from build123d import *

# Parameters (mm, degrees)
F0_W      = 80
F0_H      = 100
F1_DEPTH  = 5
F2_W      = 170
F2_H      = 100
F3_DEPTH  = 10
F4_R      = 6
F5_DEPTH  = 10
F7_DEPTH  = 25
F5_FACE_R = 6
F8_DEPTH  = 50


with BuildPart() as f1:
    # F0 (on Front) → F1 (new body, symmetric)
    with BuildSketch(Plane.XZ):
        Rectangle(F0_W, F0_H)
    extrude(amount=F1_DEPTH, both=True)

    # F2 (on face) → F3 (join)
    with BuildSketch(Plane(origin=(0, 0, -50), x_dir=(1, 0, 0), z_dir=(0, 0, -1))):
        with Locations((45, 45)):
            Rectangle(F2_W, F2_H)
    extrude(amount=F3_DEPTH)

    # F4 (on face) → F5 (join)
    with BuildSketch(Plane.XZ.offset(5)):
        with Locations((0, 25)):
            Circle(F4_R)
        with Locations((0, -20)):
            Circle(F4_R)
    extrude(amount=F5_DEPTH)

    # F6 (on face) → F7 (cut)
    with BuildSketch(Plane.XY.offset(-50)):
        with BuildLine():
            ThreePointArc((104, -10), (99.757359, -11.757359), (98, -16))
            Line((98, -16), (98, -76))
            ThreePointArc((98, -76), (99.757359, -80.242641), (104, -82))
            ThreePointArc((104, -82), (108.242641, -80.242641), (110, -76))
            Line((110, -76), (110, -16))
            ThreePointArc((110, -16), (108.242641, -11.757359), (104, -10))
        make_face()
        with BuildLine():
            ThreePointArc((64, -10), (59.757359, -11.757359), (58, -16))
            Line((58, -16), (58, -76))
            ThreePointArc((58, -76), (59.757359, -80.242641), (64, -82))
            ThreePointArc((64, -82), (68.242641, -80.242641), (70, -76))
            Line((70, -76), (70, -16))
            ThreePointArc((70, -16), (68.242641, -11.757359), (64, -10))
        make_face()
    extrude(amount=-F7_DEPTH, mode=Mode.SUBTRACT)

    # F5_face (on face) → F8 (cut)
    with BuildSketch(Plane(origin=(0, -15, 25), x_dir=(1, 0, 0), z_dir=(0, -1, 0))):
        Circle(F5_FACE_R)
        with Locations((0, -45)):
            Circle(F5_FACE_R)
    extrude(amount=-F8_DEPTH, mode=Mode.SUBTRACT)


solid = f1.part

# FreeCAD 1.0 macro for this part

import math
import FreeCAD as App
import Part
import Sketcher
from FreeCAD import Vector
Q = App.Units.Quantity


def add_polygon(sketch, points):
    """Adds a closed chain of lines whose ends are joined by coincident constraints."""
    first, n = sketch.GeometryCount, len(points)
    for a, b in zip(points, points[1:] + points[:1]):
        sketch.addGeometry(Part.LineSegment(App.Vector(*a, 0), App.Vector(*b, 0)), False)
    for i in range(n):
        sketch.addConstraint(Sketcher.Constraint("Coincident", first + i, 2, first + (i + 1) % n, 1))

doc = App.newDocument("Part")
params = doc.addObject("Spreadsheet::Sheet", "Params")
for row, (alias, value) in enumerate([
    ("sketch1_width", "80 mm"),
    ("sketch1_height", "100 mm"),
    ("pad1_length", "10 mm"),
    ("sketch2_width", "170 mm"),
    ("sketch2_height", "100 mm"),
    ("pad2_length", "10 mm"),
    ("sketch3_diameter", "12 mm"),
    ("pad3_length", "10 mm"),
    ("sketch4_radius", "5.999999 mm"),
    ("sketch4_height", "60 mm"),
    ("pocket1_length", "25 mm"),
    ("sketch5_diameter", "12 mm"),
    ("pocket2_length", "50 mm"),
], start=1):
    params.set(f"A{row}", alias)
    params.set(f"B{row}", "=" + value)
    params.setAlias(f"B{row}", alias)

body = doc.addObject("PartDesign::Body", "Body")

# Sketch on XZ plane
sketch1 = body.newObject("Sketcher::SketchObject", "Sketch")
sketch1.AttachmentSupport = (doc.getObject("XZ_Plane"), [""])
sketch1.MapMode = "FlatFace"
add_polygon(sketch1, [(-40, 50), (-40, -50), (40, -50), (40, 50)])  # lines 0-3
sketch1.addConstraint(Sketcher.Constraint("Vertical", 0))
sketch1.addConstraint(Sketcher.Constraint("Horizontal", 1))
sketch1.addConstraint(Sketcher.Constraint("Vertical", 2))
sketch1.addConstraint(Sketcher.Constraint("Horizontal", 3))
sketch1.addConstraint(Sketcher.Constraint("Symmetric", 0, 2, 2, 2, -1, 1))
sketch1.addConstraint(Sketcher.Constraint("DistanceX", 1, 1, 1, 2, Q("80 mm")))
sketch1.addConstraint(Sketcher.Constraint("DistanceY", 0, 2, 0, 1, Q("100 mm")))
sketch1.setExpression("Constraints[9]", "Params.sketch1_width")
sketch1.setExpression("Constraints[10]", "Params.sketch1_height")
pad1 = body.newObject("PartDesign::Pad", "Pad")
pad1.Profile = sketch1
pad1.setExpression("Length", "Params.pad1_length")
pad1.Midplane = True

# Sketch on XY plane
sketch2 = body.newObject("Sketcher::SketchObject", "Sketch001")
sketch2.AttachmentSupport = (doc.getObject("XY_Plane"), [""])
sketch2.MapMode = "FlatFace"
sketch2.AttachmentOffset = App.Placement(Vector(0, 0, -50), App.Rotation())
add_polygon(sketch2, [(-40, -95), (-40, 5), (130, 5), (130, -95)])  # lines 0-3
sketch2.addConstraint(Sketcher.Constraint("Vertical", 0))
sketch2.addConstraint(Sketcher.Constraint("Horizontal", 1))
sketch2.addConstraint(Sketcher.Constraint("Vertical", 2))
sketch2.addConstraint(Sketcher.Constraint("Horizontal", 3))
sketch2.addConstraint(Sketcher.Constraint("DistanceX", 1, 1, 1, 2, Q("170 mm")))
sketch2.addConstraint(Sketcher.Constraint("DistanceY", 0, 1, 0, 2, Q("100 mm")))
sketch2.addConstraint(Sketcher.Constraint("DistanceX", 0, 2, -1, 1, Q("40 mm")))
sketch2.addConstraint(Sketcher.Constraint("DistanceY", -1, 1, 0, 2, Q("5 mm")))
sketch2.setExpression("Constraints[8]", "Params.sketch2_width")
sketch2.setExpression("Constraints[9]", "Params.sketch2_height")
pad2 = body.newObject("PartDesign::Pad", "Pad001")
pad2.Profile = sketch2
pad2.setExpression("Length", "Params.pad2_length")
pad2.Reversed = True

# Sketch on XZ plane
sketch3 = body.newObject("Sketcher::SketchObject", "Sketch002")
sketch3.AttachmentSupport = (doc.getObject("XZ_Plane"), [""])
sketch3.MapMode = "FlatFace"
sketch3.AttachmentOffset = App.Placement(Vector(0, 0, 5), App.Rotation())
sketch3.addGeometry(Part.Circle(Vector(0, 25, 0), Vector(0, 0, 1), 6), False)
sketch3.addGeometry(Part.Circle(Vector(0, -20, 0), Vector(0, 0, 1), 6), False)
sketch3.addConstraint(Sketcher.Constraint("Equal", 0, 1))
sketch3.addConstraint(Sketcher.Constraint("PointOnObject", 0, 3, -2))
sketch3.addConstraint(Sketcher.Constraint("PointOnObject", 1, 3, -2))
sketch3.addConstraint(Sketcher.Constraint("Diameter", 0, Q("12 mm")))
sketch3.addConstraint(Sketcher.Constraint("DistanceY", -1, 1, 0, 3, Q("25 mm")))
sketch3.addConstraint(Sketcher.Constraint("DistanceY", 1, 3, -1, 1, Q("20 mm")))
sketch3.setExpression("Constraints[3]", "Params.sketch3_diameter")
pad3 = body.newObject("PartDesign::Pad", "Pad002")
pad3.Profile = sketch3
pad3.setExpression("Length", "Params.pad3_length")

# Sketch on XY plane
sketch4 = body.newObject("Sketcher::SketchObject", "Sketch003")
sketch4.AttachmentSupport = (doc.getObject("XY_Plane"), [""])
sketch4.MapMode = "FlatFace"
sketch4.AttachmentOffset = App.Placement(Vector(0, 0, -50), App.Rotation())
sketch4.addGeometry(Part.ArcOfCircle(Part.Circle(Vector(103.999999, -15.999999, 0), Vector(0, 0, 1), 5.999999), math.radians(89.99999), math.radians(180.00001)), False)
sketch4.addGeometry(Part.LineSegment(Vector(98, -16, 0), Vector(98, -76, 0)), False)
sketch4.addGeometry(Part.ArcOfCircle(Part.Circle(Vector(103.999999, -76.000001, 0), Vector(0, 0, 1), 5.999999), math.radians(179.99999), math.radians(270.00001)), False)
sketch4.addGeometry(Part.ArcOfCircle(Part.Circle(Vector(104.000001, -76.000001, 0), Vector(0, 0, 1), 5.999999), math.radians(-90.00001), math.radians(0.00001)), False)
sketch4.addGeometry(Part.LineSegment(Vector(110, -76, 0), Vector(110, -16, 0)), False)
sketch4.addGeometry(Part.ArcOfCircle(Part.Circle(Vector(104.000001, -15.999999, 0), Vector(0, 0, 1), 5.999999), math.radians(-0.00001), math.radians(90.00001)), False)
sketch4.addGeometry(Part.ArcOfCircle(Part.Circle(Vector(63.999999, -15.999999, 0), Vector(0, 0, 1), 5.999999), math.radians(89.99999), math.radians(180.00001)), False)
sketch4.addGeometry(Part.LineSegment(Vector(58, -16, 0), Vector(58, -76, 0)), False)
sketch4.addGeometry(Part.ArcOfCircle(Part.Circle(Vector(63.999999, -76.000001, 0), Vector(0, 0, 1), 5.999999), math.radians(179.99999), math.radians(270.00001)), False)
sketch4.addGeometry(Part.ArcOfCircle(Part.Circle(Vector(64.000001, -76.000001, 0), Vector(0, 0, 1), 5.999999), math.radians(-90.00001), math.radians(0.00001)), False)
sketch4.addGeometry(Part.LineSegment(Vector(70, -76, 0), Vector(70, -16, 0)), False)
sketch4.addGeometry(Part.ArcOfCircle(Part.Circle(Vector(64.000001, -15.999999, 0), Vector(0, 0, 1), 5.999999), math.radians(-0.00001), math.radians(90.00001)), False)
sketch4.addConstraint(Sketcher.Constraint("Tangent", 0, 2, 1, 1))
sketch4.addConstraint(Sketcher.Constraint("Tangent", 1, 2, 2, 1))
sketch4.addConstraint(Sketcher.Constraint("Tangent", 2, 2, 3, 1))
sketch4.addConstraint(Sketcher.Constraint("Tangent", 3, 2, 4, 1))
sketch4.addConstraint(Sketcher.Constraint("Tangent", 4, 2, 5, 1))
sketch4.addConstraint(Sketcher.Constraint("Tangent", 5, 2, 0, 1))
sketch4.addConstraint(Sketcher.Constraint("Tangent", 6, 2, 7, 1))
sketch4.addConstraint(Sketcher.Constraint("Tangent", 7, 2, 8, 1))
sketch4.addConstraint(Sketcher.Constraint("Tangent", 8, 2, 9, 1))
sketch4.addConstraint(Sketcher.Constraint("Tangent", 9, 2, 10, 1))
sketch4.addConstraint(Sketcher.Constraint("Tangent", 10, 2, 11, 1))
sketch4.addConstraint(Sketcher.Constraint("Tangent", 11, 2, 6, 1))
sketch4.addConstraint(Sketcher.Constraint("Vertical", 1))
sketch4.addConstraint(Sketcher.Constraint("Vertical", 4))
sketch4.addConstraint(Sketcher.Constraint("Vertical", 7))
sketch4.addConstraint(Sketcher.Constraint("Vertical", 10))
sketch4.addConstraint(Sketcher.Constraint("Equal", 0, 2))
sketch4.addConstraint(Sketcher.Constraint("Equal", 2, 3))
sketch4.addConstraint(Sketcher.Constraint("Equal", 5, 6))
sketch4.addConstraint(Sketcher.Constraint("Equal", 6, 8))
sketch4.addConstraint(Sketcher.Constraint("Equal", 8, 9))
sketch4.addConstraint(Sketcher.Constraint("Horizontal", 5, 3, 6, 3))
sketch4.addConstraint(Sketcher.Constraint("Horizontal", 3, 3, 8, 3))
sketch4.addConstraint(Sketcher.Constraint("Vertical", 5, 3, 2, 2))
sketch4.addConstraint(Sketcher.Constraint("Vertical", 2, 2, 5, 2))
sketch4.addConstraint(Sketcher.Constraint("Vertical", 11, 3, 8, 2))
sketch4.addConstraint(Sketcher.Constraint("Vertical", 8, 2, 11, 2))
sketch4.addConstraint(Sketcher.Constraint("Radius", 0, Q("5.999999 mm")))
sketch4.addConstraint(Sketcher.Constraint("DistanceY", 1, 2, 1, 1, Q("60 mm")))
sketch4.addConstraint(Sketcher.Constraint("DistanceX", -1, 1, 0, 3, Q("103.999999 mm")))
sketch4.addConstraint(Sketcher.Constraint("DistanceY", 0, 3, -1, 1, Q("15.999999 mm")))
sketch4.addConstraint(Sketcher.Constraint("DistanceX", -1, 1, 6, 3, Q("63.999999 mm")))
sketch4.setExpression("Constraints[27]", "Params.sketch4_radius")
sketch4.setExpression("Constraints[28]", "Params.sketch4_height")
pocket1 = body.newObject("PartDesign::Pocket", "Pocket")
pocket1.Profile = sketch4
pocket1.setExpression("Length", "Params.pocket1_length")

# Sketch on XZ plane
sketch5 = body.newObject("Sketcher::SketchObject", "Sketch004")
sketch5.AttachmentSupport = (doc.getObject("XZ_Plane"), [""])
sketch5.MapMode = "FlatFace"
sketch5.AttachmentOffset = App.Placement(Vector(0, 0, 15), App.Rotation())
sketch5.addGeometry(Part.Circle(Vector(0, 25, 0), Vector(0, 0, 1), 6), False)
sketch5.addGeometry(Part.Circle(Vector(0, -20, 0), Vector(0, 0, 1), 6), False)
sketch5.addConstraint(Sketcher.Constraint("Equal", 0, 1))
sketch5.addConstraint(Sketcher.Constraint("PointOnObject", 0, 3, -2))
sketch5.addConstraint(Sketcher.Constraint("PointOnObject", 1, 3, -2))
sketch5.addConstraint(Sketcher.Constraint("Diameter", 0, Q("12 mm")))
sketch5.addConstraint(Sketcher.Constraint("DistanceY", -1, 1, 0, 3, Q("25 mm")))
sketch5.addConstraint(Sketcher.Constraint("DistanceY", 1, 3, -1, 1, Q("20 mm")))
sketch5.setExpression("Constraints[3]", "Params.sketch5_diameter")
pocket2 = body.newObject("PartDesign::Pocket", "Pocket001")
pocket2.Profile = sketch5
pocket2.setExpression("Length", "Params.pocket2_length")

doc.recompute()
